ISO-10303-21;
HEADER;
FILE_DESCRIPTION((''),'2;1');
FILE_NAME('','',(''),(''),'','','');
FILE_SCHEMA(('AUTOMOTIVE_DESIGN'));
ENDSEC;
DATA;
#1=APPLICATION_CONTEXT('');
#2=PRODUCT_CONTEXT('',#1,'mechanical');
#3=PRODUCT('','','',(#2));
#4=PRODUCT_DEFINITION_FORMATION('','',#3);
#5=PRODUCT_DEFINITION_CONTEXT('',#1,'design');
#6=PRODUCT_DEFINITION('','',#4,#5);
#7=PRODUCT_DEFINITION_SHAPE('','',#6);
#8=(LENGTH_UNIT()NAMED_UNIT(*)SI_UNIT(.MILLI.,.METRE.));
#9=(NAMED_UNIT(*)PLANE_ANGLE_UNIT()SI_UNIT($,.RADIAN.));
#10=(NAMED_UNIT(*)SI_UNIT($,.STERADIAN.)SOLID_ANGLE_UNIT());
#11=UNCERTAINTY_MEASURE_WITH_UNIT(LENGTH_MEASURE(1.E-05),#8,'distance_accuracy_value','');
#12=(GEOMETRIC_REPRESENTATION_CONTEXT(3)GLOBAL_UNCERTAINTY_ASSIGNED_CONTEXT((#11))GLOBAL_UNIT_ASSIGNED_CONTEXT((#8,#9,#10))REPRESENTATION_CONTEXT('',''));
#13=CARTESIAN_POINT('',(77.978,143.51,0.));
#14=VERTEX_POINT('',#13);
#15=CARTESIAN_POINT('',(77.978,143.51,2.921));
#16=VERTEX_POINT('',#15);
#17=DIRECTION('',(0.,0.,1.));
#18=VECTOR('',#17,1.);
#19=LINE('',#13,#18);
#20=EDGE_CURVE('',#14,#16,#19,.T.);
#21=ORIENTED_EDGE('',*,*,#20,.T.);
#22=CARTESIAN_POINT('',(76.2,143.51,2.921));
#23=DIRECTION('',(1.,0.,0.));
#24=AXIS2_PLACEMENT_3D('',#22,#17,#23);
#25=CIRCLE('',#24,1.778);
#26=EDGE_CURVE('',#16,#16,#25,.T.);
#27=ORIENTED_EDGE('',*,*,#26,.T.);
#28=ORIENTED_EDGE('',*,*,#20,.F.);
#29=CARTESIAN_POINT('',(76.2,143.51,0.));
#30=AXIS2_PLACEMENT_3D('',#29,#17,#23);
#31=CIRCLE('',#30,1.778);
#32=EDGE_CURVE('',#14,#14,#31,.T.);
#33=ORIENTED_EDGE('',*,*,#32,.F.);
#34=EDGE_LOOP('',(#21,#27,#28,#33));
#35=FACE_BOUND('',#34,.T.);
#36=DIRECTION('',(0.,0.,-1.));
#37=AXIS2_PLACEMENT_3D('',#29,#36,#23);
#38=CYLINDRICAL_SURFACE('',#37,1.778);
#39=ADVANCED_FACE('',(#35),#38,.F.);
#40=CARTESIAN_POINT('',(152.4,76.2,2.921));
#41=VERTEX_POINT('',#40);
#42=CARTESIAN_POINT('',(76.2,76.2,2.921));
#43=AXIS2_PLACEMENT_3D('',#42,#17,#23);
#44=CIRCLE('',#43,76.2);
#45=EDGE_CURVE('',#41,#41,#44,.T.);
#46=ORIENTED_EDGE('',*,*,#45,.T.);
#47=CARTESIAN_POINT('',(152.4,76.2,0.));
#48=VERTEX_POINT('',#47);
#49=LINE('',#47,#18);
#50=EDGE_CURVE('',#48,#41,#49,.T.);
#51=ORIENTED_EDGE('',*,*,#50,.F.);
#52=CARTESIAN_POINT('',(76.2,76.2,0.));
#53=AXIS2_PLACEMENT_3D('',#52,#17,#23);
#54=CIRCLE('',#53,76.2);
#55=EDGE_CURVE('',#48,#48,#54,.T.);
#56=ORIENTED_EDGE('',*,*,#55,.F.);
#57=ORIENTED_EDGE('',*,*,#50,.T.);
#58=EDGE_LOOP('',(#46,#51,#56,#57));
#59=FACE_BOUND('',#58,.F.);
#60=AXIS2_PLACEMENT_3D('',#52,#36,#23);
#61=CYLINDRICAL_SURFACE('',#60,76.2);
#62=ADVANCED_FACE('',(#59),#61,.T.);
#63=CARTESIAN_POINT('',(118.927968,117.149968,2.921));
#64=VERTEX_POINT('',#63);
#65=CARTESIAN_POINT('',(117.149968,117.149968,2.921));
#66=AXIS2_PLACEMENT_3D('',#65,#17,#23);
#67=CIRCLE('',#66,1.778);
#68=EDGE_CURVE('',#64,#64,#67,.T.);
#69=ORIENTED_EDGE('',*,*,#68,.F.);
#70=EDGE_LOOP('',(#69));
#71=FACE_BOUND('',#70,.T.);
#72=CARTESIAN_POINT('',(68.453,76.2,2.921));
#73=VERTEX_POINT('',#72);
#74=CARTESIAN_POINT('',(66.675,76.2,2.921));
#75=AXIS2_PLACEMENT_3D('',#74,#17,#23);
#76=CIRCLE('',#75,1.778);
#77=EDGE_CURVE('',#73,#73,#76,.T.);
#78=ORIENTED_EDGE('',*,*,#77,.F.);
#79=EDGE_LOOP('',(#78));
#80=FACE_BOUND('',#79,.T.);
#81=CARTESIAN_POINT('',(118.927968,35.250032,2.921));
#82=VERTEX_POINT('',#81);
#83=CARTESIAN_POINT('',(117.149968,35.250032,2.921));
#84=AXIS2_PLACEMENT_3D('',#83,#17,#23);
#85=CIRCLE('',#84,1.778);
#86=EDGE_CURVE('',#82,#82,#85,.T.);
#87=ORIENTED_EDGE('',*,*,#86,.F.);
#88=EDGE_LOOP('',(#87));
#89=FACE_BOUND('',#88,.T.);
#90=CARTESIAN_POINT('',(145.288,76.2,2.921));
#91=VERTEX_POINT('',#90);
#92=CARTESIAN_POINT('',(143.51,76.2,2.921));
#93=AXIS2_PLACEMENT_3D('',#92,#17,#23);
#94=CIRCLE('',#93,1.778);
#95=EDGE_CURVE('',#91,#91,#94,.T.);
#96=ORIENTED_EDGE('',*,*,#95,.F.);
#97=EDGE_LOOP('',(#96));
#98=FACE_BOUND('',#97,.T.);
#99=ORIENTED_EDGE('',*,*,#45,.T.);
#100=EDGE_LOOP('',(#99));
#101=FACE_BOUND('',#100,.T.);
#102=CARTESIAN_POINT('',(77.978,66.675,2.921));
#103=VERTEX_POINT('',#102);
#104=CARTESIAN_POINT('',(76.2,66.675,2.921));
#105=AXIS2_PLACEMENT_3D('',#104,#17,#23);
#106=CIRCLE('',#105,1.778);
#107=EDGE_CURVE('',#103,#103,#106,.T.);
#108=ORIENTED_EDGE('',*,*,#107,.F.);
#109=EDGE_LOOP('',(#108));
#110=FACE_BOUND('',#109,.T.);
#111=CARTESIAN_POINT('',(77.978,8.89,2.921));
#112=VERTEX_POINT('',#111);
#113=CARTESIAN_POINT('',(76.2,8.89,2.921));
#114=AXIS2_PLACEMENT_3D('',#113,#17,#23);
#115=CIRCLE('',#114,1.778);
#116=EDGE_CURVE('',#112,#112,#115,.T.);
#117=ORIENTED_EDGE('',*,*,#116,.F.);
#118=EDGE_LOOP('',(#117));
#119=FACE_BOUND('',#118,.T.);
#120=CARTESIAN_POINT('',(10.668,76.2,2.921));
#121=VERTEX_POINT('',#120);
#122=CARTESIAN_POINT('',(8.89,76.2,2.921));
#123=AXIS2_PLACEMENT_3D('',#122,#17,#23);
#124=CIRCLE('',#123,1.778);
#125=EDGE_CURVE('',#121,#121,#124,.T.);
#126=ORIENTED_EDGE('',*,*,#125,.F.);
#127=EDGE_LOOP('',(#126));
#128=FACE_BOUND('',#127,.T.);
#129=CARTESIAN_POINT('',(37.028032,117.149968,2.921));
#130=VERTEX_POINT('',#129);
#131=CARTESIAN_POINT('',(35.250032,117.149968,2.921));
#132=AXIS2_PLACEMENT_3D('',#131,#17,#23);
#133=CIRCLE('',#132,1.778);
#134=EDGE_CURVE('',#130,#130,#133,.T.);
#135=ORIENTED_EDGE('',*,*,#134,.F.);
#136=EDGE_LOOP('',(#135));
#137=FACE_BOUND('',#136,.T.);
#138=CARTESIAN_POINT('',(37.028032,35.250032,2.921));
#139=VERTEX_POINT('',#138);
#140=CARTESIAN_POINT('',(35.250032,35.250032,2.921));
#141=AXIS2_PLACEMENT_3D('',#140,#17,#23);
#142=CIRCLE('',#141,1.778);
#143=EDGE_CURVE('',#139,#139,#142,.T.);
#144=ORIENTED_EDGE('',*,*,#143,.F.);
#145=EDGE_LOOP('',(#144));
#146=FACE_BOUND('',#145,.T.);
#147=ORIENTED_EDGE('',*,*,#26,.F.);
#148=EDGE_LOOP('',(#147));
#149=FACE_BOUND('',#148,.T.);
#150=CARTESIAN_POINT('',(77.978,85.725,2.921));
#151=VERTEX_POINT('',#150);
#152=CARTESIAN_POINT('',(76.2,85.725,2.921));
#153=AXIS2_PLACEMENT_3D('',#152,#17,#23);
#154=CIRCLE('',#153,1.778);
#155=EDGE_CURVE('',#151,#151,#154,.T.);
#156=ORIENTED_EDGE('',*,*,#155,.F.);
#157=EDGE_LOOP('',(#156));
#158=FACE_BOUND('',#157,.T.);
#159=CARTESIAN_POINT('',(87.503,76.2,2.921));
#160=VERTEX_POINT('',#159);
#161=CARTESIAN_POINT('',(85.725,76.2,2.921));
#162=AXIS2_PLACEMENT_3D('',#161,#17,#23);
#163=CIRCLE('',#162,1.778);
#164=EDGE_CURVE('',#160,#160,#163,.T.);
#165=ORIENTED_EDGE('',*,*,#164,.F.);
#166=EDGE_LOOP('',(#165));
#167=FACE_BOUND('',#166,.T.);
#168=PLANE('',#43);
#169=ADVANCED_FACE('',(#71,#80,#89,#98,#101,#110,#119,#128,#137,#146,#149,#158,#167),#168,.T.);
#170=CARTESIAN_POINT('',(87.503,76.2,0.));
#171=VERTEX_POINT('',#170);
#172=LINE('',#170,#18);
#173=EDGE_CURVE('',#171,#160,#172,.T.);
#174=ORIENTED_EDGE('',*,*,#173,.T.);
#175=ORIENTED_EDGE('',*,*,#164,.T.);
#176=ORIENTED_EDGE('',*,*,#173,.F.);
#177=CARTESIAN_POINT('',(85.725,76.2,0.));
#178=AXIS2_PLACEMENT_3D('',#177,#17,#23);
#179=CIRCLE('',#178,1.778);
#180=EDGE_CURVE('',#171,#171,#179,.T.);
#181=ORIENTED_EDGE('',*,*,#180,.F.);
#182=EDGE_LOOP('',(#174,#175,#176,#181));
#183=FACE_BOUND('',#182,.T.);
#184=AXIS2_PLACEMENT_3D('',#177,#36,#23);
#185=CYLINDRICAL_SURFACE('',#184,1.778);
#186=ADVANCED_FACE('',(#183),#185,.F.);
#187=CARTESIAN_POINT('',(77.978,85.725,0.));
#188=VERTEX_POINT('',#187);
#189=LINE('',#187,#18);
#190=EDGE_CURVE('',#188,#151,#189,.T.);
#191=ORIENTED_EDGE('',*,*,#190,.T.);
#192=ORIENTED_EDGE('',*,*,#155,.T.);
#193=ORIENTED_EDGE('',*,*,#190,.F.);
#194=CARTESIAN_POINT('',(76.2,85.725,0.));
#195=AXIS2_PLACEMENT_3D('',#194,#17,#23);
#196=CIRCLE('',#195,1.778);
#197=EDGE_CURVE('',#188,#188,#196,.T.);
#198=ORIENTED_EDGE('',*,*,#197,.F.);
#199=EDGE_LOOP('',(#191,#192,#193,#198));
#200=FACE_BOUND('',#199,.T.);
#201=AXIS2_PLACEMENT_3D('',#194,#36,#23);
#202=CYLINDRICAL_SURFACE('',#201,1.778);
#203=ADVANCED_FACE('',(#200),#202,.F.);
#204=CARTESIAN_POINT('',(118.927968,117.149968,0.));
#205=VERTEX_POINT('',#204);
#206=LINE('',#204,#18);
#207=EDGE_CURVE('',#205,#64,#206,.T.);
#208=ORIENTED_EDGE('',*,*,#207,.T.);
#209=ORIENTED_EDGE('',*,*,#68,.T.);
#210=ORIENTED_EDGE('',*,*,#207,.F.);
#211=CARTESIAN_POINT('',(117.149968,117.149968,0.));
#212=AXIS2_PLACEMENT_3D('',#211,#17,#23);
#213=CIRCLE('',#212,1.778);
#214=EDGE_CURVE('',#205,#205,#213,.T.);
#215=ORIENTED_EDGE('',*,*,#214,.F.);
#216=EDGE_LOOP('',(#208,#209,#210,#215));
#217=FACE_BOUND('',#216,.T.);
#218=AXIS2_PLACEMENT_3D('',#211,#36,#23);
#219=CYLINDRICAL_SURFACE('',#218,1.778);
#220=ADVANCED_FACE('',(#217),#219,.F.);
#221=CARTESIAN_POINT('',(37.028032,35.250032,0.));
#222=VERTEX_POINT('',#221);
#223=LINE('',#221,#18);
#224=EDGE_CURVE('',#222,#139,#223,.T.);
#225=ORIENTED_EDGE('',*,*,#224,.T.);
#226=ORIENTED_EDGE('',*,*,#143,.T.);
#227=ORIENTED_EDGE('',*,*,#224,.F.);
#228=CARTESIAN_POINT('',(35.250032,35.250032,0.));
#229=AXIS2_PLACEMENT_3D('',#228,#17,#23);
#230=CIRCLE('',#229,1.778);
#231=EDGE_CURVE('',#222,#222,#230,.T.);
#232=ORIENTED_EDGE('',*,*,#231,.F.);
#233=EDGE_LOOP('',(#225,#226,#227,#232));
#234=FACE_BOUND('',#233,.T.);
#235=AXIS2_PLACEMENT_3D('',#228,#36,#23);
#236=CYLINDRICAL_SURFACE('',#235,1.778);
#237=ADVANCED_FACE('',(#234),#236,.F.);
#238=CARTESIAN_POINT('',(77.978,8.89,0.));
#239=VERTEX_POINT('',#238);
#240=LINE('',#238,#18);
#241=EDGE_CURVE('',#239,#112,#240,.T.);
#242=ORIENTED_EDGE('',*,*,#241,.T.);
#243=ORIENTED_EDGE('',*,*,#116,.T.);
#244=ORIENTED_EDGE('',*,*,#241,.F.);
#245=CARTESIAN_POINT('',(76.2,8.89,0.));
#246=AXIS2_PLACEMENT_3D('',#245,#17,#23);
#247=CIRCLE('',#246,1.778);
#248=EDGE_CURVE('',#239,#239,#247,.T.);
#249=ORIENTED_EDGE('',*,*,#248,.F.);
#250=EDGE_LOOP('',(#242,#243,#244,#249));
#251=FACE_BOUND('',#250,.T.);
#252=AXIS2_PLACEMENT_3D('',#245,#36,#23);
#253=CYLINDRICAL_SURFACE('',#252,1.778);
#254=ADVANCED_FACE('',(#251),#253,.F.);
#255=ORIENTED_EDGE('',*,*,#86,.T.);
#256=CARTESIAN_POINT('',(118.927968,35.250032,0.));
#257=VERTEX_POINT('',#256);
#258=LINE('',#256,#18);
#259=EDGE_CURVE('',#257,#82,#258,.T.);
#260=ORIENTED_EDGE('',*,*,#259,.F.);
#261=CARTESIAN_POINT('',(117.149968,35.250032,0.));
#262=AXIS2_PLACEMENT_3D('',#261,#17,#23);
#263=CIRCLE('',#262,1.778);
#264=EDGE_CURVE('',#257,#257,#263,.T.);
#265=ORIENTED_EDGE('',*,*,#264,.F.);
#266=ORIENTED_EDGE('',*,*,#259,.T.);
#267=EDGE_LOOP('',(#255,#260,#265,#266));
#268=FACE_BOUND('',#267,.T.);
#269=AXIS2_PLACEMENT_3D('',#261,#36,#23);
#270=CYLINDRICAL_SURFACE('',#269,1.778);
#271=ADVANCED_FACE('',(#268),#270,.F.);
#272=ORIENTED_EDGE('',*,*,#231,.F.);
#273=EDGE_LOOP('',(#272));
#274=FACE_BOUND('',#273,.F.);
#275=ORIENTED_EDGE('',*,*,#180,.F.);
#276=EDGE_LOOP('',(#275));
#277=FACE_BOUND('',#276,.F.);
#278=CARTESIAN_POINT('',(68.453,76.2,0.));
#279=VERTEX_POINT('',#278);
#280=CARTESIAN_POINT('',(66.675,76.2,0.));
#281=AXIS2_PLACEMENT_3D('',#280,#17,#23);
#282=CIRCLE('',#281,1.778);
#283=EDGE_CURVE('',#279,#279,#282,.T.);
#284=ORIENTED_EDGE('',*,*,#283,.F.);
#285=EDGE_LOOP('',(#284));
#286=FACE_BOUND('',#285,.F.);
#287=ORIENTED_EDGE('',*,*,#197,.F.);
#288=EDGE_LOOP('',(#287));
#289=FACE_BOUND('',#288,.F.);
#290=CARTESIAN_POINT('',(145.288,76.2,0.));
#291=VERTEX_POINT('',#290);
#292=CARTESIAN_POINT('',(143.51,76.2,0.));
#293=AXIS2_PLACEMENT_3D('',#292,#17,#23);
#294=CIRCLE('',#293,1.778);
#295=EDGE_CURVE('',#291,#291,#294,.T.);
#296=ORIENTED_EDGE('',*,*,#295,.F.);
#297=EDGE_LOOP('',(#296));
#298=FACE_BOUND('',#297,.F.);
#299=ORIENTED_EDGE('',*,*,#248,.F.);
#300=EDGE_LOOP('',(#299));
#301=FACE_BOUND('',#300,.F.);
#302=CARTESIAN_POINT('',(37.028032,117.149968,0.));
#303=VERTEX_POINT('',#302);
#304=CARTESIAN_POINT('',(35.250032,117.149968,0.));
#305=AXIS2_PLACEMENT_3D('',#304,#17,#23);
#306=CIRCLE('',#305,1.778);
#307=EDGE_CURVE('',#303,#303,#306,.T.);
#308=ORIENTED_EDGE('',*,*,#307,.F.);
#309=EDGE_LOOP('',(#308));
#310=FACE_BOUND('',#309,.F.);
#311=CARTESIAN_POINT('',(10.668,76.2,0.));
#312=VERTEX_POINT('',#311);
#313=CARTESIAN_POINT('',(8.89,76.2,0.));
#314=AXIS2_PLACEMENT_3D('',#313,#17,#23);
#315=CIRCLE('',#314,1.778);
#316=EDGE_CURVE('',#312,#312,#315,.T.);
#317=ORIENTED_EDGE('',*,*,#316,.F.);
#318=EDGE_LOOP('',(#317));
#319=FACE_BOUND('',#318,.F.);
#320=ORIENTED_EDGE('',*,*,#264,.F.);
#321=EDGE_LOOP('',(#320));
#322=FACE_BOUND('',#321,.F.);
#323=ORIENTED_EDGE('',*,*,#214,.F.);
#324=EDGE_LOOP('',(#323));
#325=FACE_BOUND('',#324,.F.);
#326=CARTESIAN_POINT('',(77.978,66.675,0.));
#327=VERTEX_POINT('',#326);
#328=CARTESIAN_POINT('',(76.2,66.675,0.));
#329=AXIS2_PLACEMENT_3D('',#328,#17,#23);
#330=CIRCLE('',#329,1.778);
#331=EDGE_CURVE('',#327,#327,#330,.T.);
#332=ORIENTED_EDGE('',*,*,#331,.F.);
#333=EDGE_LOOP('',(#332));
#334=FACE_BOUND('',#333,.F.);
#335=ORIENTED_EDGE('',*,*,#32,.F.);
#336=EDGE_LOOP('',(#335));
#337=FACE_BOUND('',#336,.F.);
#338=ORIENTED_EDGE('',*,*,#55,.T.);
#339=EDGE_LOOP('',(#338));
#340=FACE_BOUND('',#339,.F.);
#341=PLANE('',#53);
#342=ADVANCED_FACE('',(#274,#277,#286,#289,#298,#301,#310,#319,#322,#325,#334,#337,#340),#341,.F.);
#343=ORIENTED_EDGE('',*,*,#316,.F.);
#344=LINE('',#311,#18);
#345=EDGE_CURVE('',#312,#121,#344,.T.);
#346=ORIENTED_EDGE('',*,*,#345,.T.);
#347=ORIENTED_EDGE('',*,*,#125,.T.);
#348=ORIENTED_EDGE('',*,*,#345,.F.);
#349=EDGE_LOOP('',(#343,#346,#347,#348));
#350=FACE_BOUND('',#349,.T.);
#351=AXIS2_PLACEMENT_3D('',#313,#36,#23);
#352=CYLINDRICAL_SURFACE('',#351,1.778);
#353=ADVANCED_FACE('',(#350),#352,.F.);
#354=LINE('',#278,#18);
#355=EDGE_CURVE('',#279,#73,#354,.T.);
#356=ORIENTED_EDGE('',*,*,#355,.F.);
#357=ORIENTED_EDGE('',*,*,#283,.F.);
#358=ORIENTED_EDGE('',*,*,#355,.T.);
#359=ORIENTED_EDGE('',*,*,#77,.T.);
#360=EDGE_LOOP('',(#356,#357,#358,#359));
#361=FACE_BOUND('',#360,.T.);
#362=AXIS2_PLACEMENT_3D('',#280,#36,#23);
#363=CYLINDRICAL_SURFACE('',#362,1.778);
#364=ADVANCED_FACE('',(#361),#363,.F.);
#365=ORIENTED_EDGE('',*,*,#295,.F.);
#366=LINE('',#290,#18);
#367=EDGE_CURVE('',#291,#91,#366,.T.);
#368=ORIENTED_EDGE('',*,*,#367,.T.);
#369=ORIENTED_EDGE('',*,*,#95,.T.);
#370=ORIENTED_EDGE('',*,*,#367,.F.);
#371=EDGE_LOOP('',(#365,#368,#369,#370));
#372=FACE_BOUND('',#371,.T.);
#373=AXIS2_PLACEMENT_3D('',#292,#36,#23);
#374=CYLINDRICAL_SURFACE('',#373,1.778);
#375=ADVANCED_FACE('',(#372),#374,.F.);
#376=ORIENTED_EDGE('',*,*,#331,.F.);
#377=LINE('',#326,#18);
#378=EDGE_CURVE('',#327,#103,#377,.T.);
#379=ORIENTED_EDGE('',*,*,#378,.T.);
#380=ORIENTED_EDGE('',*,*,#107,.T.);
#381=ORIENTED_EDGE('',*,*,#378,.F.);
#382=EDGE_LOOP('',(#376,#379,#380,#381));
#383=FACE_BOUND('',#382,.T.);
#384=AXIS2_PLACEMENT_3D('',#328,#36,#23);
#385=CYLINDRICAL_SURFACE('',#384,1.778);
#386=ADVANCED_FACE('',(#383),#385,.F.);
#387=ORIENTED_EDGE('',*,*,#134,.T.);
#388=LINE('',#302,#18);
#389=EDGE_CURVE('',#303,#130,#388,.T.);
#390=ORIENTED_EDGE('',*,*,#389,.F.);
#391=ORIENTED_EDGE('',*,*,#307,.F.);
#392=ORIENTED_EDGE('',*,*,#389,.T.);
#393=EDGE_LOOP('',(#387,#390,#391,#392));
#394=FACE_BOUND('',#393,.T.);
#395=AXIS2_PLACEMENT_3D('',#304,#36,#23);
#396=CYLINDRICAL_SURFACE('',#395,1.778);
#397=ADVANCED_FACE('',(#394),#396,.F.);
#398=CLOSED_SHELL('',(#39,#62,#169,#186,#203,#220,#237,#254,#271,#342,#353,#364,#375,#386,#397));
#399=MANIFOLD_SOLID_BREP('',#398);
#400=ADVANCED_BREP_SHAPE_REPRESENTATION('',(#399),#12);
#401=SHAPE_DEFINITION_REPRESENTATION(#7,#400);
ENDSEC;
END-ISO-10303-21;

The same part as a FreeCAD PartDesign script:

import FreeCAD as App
import Part
import Sketcher
Q = App.Units.Quantity

doc = App.newDocument("Part")
params = doc.addObject("Spreadsheet::Sheet", "Params")
for row, (alias, value) in enumerate([
    ("sketch1_diameter", "6 in"),
    ("sketch1_diameter2", "0.14 in"),
    ("pad1_length", "0.115 in"),
], start=1):
    params.set(f"A{row}", alias)
    params.set(f"B{row}", "=" + value)
    params.setAlias(f"B{row}", alias)

body = doc.addObject("PartDesign::Body", "Body")

# Sketch on XY plane
sketch1 = body.newObject("Sketcher::SketchObject", "Sketch")
sketch1.AttachmentSupport = (doc.getObject("XY_Plane"), [""])
sketch1.MapMode = "FlatFace"
sketch1.addGeometry([
    Part.Circle(App.Vector(76.2, 76.2, 0), App.Vector(0, 0, 1), 76.2),  # 0
    Part.Circle(App.Vector(35.250032, 35.250032, 0), App.Vector(0, 0, 1), 1.778),  # 1
    Part.Circle(App.Vector(76.2, 8.89, 0), App.Vector(0, 0, 1), 1.778),  # 2
    Part.Circle(App.Vector(117.149968, 35.250032, 0), App.Vector(0, 0, 1), 1.778),  # 3
    Part.Circle(App.Vector(76.2, 66.675, 0), App.Vector(0, 0, 1), 1.778),  # 4
    Part.Circle(App.Vector(8.89, 76.2, 0), App.Vector(0, 0, 1), 1.778),  # 5
    Part.Circle(App.Vector(66.675, 76.2, 0), App.Vector(0, 0, 1), 1.778),  # 6
    Part.Circle(App.Vector(35.250032, 117.149968, 0), App.Vector(0, 0, 1), 1.778),  # 7
    Part.Circle(App.Vector(85.725, 76.2, 0), App.Vector(0, 0, 1), 1.778),  # 8
    Part.Circle(App.Vector(76.2, 85.725, 0), App.Vector(0, 0, 1), 1.778),  # 9
    Part.Circle(App.Vector(143.51, 76.2, 0), App.Vector(0, 0, 1), 1.778),  # 10
    Part.Circle(App.Vector(76.2, 143.51, 0), App.Vector(0, 0, 1), 1.778),  # 11
    Part.Circle(App.Vector(117.149968, 117.149968, 0), App.Vector(0, 0, 1), 1.778),  # 12
], False)
sketch1.addConstraint([
    Sketcher.Constraint("Equal", 1, 2),
    Sketcher.Constraint("Equal", 2, 3),
    Sketcher.Constraint("Equal", 3, 4),
    Sketcher.Constraint("Equal", 4, 5),
    Sketcher.Constraint("Equal", 5, 6),
    Sketcher.Constraint("Equal", 6, 7),
    Sketcher.Constraint("Equal", 7, 8),
    Sketcher.Constraint("Equal", 8, 9),
    Sketcher.Constraint("Equal", 9, 10),
    Sketcher.Constraint("Equal", 10, 11),
    Sketcher.Constraint("Equal", 11, 12),
    Sketcher.Constraint("Horizontal", 1, 3, 3, 3),
    Sketcher.Constraint("Horizontal", 0, 3, 5, 3),
    Sketcher.Constraint("Horizontal", 5, 3, 6, 3),
    Sketcher.Constraint("Horizontal", 6, 3, 8, 3),
    Sketcher.Constraint("Horizontal", 8, 3, 10, 3),
    Sketcher.Constraint("Horizontal", 7, 3, 12, 3),
    Sketcher.Constraint("Vertical", 0, 3, 2, 3),
    Sketcher.Constraint("Vertical", 2, 3, 4, 3),
    Sketcher.Constraint("Vertical", 1, 3, 7, 3),
    Sketcher.Constraint("Vertical", 4, 3, 9, 3),
    Sketcher.Constraint("Vertical", 9, 3, 11, 3),
    Sketcher.Constraint("Vertical", 3, 3, 12, 3),
    Sketcher.Constraint("Diameter", 0, Q("6 in")),
    Sketcher.Constraint("Diameter", 1, Q("0.14 in")),
    Sketcher.Constraint("DistanceX", -1, 1, 0, 3, Q("3 in")),
    Sketcher.Constraint("DistanceY", -1, 1, 0, 3, Q("3 in")),
    Sketcher.Constraint("DistanceY", -1, 1, 2, 3, Q("0.35 in")),
    Sketcher.Constraint("DistanceX", -1, 1, 5, 3, Q("0.35 in")),
    Sketcher.Constraint("DistanceX", -1, 1, 10, 3, Q("5.65 in")),
    Sketcher.Constraint("DistanceY", -1, 1, 11, 3, Q("5.65 in")),
    Sketcher.Constraint("DistanceX", 6, 3, 8, 3, Q("0.75 in")),
    Sketcher.Constraint("DistanceY", 4, 3, 9, 3, Q("0.75 in")),
    Sketcher.Constraint("DistanceY", -1, 1, 4, 3, Q("2.625 in")),
    Sketcher.Constraint("DistanceX", -1, 1, 6, 3, Q("2.625 in")),
    Sketcher.Constraint("DistanceX", -1, 1, 1, 3, 35.250032),
    Sketcher.Constraint("DistanceY", -1, 1, 1, 3, 35.250032),
    Sketcher.Constraint("DistanceX", -1, 1, 3, 3, 117.149968),
    Sketcher.Constraint("DistanceY", -1, 1, 7, 3, 117.149968),
])
sketch1.setExpression("Constraints[23]", "Params.sketch1_diameter")
sketch1.setExpression("Constraints[24]", "Params.sketch1_diameter2")
pad1 = body.newObject("PartDesign::Pad", "Pad")
pad1.Profile = sketch1
pad1.setExpression("Length", "Params.pad1_length")

doc.recompute()
